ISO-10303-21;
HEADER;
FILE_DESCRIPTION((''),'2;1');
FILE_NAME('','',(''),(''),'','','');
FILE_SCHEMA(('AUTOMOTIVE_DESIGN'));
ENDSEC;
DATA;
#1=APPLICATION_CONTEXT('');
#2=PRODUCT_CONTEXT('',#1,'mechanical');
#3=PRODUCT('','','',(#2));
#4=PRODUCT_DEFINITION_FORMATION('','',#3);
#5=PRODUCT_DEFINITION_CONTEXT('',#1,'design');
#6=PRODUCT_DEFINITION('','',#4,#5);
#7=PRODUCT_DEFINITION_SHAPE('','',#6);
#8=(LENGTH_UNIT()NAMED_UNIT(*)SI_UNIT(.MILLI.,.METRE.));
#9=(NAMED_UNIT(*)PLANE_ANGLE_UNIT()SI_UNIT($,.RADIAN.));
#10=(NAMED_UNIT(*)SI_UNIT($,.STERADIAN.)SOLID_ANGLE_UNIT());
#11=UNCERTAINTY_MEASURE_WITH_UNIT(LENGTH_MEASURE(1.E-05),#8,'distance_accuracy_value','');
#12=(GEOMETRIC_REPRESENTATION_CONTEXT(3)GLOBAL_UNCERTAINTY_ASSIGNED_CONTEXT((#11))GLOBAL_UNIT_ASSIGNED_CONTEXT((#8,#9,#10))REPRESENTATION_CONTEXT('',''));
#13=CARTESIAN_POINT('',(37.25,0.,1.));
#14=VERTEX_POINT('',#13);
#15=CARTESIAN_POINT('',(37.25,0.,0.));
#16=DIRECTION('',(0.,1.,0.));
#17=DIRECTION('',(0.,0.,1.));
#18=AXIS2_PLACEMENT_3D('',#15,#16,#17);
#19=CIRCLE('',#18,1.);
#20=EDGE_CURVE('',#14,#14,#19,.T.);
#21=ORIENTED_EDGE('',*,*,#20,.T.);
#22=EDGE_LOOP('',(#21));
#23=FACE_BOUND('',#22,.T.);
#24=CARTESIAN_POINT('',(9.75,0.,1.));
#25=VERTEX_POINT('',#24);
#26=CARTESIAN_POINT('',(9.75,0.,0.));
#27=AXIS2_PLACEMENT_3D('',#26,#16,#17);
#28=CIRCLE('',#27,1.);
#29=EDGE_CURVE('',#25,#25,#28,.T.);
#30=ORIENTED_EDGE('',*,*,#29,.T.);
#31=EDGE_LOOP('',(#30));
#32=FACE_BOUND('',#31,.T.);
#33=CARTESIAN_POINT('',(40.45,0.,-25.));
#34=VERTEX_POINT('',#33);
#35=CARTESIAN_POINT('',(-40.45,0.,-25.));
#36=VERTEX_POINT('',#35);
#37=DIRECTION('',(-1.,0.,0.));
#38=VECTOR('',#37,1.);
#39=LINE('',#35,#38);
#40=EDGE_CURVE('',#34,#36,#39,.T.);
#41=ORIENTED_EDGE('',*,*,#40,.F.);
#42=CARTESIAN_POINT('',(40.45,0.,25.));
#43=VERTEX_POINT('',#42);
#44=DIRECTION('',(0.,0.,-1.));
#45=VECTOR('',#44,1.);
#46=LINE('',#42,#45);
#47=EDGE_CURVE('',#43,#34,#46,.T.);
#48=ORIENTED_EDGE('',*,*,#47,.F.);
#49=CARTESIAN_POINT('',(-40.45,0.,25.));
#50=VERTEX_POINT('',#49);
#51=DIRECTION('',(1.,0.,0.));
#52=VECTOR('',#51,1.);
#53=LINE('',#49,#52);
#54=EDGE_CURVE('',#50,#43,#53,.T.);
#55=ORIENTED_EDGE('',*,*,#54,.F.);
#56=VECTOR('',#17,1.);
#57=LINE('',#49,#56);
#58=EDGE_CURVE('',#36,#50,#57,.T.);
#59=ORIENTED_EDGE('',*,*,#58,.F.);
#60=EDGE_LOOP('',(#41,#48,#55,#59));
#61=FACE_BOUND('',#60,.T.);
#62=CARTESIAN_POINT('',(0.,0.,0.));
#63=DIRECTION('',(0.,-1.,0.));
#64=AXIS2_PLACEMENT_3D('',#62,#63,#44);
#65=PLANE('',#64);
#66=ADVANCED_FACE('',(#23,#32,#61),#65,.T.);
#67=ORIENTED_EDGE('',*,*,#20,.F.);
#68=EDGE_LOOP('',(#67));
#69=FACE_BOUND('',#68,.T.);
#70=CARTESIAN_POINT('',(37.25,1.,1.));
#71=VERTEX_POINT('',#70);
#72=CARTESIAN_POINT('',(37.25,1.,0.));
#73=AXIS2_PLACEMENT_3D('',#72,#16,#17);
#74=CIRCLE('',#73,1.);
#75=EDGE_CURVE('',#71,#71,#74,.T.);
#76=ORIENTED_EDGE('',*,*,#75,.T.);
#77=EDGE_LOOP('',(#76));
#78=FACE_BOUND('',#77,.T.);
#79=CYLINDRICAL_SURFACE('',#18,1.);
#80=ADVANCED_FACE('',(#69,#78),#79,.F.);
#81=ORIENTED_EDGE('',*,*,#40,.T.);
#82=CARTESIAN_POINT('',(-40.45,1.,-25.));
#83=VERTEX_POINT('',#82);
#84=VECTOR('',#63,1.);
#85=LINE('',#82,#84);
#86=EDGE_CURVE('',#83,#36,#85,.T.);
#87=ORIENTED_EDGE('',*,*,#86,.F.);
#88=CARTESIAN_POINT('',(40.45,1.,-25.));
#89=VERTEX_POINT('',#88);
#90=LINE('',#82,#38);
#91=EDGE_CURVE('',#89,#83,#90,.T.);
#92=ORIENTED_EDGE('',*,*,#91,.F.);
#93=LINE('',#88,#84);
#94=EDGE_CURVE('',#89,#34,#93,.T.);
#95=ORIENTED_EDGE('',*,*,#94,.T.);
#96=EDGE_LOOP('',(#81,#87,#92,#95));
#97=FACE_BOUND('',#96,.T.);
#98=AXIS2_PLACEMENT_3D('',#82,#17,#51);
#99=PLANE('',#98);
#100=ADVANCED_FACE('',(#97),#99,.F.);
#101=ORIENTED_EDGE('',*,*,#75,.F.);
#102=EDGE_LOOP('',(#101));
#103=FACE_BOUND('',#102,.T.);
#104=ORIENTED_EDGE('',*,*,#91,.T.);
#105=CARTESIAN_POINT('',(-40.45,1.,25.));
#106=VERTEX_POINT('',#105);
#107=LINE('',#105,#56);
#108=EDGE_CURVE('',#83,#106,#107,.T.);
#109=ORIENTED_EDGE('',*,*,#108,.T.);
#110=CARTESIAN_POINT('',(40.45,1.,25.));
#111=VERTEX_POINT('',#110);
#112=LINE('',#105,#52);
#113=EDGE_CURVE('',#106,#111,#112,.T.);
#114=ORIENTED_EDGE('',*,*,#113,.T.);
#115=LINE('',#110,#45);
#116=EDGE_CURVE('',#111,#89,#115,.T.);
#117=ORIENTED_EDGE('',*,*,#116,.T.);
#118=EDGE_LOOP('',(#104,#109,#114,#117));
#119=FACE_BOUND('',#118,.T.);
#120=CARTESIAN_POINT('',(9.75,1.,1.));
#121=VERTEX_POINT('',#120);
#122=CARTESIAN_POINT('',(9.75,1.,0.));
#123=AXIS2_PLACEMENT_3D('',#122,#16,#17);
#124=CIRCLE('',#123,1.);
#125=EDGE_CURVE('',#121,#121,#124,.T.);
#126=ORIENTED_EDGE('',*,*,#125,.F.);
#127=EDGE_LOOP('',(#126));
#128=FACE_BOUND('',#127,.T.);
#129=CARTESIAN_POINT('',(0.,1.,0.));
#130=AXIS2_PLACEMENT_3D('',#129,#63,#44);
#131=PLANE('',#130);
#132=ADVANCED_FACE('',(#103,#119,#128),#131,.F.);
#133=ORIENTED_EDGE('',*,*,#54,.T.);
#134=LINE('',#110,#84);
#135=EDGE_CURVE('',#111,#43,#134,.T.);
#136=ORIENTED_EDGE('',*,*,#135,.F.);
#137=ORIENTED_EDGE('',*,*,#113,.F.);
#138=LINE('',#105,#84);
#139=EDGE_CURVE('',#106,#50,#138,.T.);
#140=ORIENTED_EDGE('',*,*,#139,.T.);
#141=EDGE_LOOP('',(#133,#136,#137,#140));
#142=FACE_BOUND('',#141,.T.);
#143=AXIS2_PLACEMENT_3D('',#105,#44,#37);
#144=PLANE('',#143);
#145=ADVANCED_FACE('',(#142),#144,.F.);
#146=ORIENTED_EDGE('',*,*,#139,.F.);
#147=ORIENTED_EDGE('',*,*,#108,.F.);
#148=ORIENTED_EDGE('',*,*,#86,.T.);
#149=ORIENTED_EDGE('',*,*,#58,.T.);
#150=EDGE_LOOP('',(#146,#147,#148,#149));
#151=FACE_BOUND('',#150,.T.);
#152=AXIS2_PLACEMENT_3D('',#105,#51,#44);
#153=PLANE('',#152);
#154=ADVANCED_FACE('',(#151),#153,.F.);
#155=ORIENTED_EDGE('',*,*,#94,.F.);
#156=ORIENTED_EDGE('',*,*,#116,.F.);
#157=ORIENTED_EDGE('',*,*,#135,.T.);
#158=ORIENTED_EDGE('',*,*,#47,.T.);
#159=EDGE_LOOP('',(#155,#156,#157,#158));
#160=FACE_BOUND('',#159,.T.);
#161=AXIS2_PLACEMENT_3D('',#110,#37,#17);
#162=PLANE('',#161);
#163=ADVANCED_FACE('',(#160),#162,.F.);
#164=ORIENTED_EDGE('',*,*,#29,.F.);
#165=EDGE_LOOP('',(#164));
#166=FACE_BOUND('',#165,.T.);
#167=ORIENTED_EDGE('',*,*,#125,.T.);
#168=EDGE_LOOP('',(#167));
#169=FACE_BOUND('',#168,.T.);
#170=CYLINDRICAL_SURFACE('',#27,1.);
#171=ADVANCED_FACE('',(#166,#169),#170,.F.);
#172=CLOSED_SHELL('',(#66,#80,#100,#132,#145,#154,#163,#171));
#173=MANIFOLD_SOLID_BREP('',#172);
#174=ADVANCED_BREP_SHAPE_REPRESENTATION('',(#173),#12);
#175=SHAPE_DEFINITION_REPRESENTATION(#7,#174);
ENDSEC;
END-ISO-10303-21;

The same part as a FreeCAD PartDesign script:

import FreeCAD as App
import Part
import Sketcher

doc = App.newDocument("Part")
body = doc.addObject("PartDesign::Body", "Body")

# Sketch on XZ plane
sketch1 = body.newObject("Sketcher::SketchObject", "Sketch")
sketch1.AttachmentSupport = (doc.getObject("XZ_Plane"), [""])
sketch1.MapMode = "FlatFace"
sketch1.addGeometry(Part.LineSegment(App.Vector(-40.45, -25, 0), App.Vector(-40.45, 25, 0)), False)
sketch1.addGeometry(Part.LineSegment(App.Vector(-40.45, 25, 0), App.Vector(40.45, 25, 0)), False)
sketch1.addGeometry(Part.LineSegment(App.Vector(40.45, 25, 0), App.Vector(40.45, -25, 0)), False)
sketch1.addGeometry(Part.LineSegment(App.Vector(40.45, -25, 0), App.Vector(-40.45, -25, 0)), False)
sketch1.addConstraint(Sketcher.Constraint("Coincident", 0, 2, 1, 1))
sketch1.addConstraint(Sketcher.Constraint("Coincident", 1, 2, 2, 1))
sketch1.addConstraint(Sketcher.Constraint("Coincident", 2, 2, 3, 1))
sketch1.addConstraint(Sketcher.Constraint("Coincident", 3, 2, 0, 1))
sketch1.addConstraint(Sketcher.Constraint("Vertical", 0))
sketch1.addConstraint(Sketcher.Constraint("Horizontal", 1))
sketch1.addConstraint(Sketcher.Constraint("Vertical", 2))
sketch1.addConstraint(Sketcher.Constraint("Horizontal", 3))
sketch1.addConstraint(Sketcher.Constraint("Symmetric", 0, 2, 2, 2, -1, 1))
sketch1.addConstraint(Sketcher.Constraint("DistanceY", 0, 1, 0, 2, 50.0))
sketch1.addConstraint(Sketcher.Constraint("DistanceX", 1, 1, 1, 2, 80.9))
pad1 = body.newObject("PartDesign::Pad", "Pad")
pad1.Profile = sketch1
pad1.Length = 1
pad1.Reversed = True

# Sketch on XZ plane
sketch2 = body.newObject("Sketcher::SketchObject", "Sketch001")
sketch2.AttachmentSupport = (doc.getObject("XZ_Plane"), [""])
sketch2.MapMode = "FlatFace"
sketch2.AttachmentOffset = App.Placement(App.Vector(0, 0, -1), App.Rotation())
sketch2.addGeometry(Part.Circle(App.Vector(37.25, 0, 0), App.Vector(0, 0, 1), 1), False)
sketch2.addGeometry(Part.Circle(App.Vector(9.75, 0, 0), App.Vector(0, 0, 1), 1), False)
sketch2.addConstraint(Sketcher.Constraint("Equal", 0, 1))
sketch2.addConstraint(Sketcher.Constraint("PointOnObject", 0, 3, -1))
sketch2.addConstraint(Sketcher.Constraint("PointOnObject", 1, 3, -1))
sketch2.addConstraint(Sketcher.Constraint("Diameter", 0, 2.0))
sketch2.addConstraint(Sketcher.Constraint("DistanceX", 1, 3, 0, 3, 27.5))
sketch2.addConstraint(Sketcher.Constraint("DistanceX", -1, 1, 0, 3, 37.25))
pocket1 = body.newObject("PartDesign::Pocket", "Pocket")
pocket1.Profile = sketch2
pocket1.Type = "ThroughAll"
pocket1.Reversed = True

doc.recompute()
